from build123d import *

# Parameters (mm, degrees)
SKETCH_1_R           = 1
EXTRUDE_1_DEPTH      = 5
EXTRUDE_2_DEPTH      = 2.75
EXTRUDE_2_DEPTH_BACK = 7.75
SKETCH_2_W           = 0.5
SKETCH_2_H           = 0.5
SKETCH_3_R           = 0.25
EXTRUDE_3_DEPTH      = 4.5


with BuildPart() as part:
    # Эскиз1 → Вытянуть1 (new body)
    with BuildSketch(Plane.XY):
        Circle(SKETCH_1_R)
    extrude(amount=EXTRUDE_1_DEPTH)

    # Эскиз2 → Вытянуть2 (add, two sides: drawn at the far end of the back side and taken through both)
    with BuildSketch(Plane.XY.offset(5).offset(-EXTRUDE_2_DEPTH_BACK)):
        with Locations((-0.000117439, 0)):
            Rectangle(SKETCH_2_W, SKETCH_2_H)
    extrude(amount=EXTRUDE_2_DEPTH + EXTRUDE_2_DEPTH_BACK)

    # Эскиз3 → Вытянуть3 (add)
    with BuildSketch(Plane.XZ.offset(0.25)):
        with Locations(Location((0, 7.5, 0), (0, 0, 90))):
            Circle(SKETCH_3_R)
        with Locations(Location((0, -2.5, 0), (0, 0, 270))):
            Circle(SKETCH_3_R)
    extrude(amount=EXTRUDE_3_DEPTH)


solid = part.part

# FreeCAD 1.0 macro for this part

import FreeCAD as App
import Part
import Sketcher
Q = App.Units.Quantity


def add_polygon(sketch, points):
    """Adds a closed chain of lines whose ends are joined by coincident constraints."""
    first, n = sketch.GeometryCount, len(points)
    for a, b in zip(points, points[1:] + points[:1]):
        sketch.addGeometry(Part.LineSegment(App.Vector(*a, 0), App.Vector(*b, 0)), False)
    for i in range(n):
        sketch.addConstraint(Sketcher.Constraint("Coincident", first + i, 2, first + (i + 1) % n, 1))

doc = App.newDocument("Part")
params = doc.addObject("Spreadsheet::Sheet", "Params")
for row, (alias, value) in enumerate([
    ("sketch1_diameter", "2 mm"),
    ("pad1_length", "5 mm"),
    ("sketch2_width", "0.5 mm"),
    ("pad2_length", "2.75 mm"),
    ("pad2_length2", "7.75 mm"),
    ("sketch3_diameter", "0.5 mm"),
    ("pad3_length", "4.5 mm"),
], start=1):
    params.set(f"A{row}", alias)
    params.set(f"B{row}", "=" + value)
    params.setAlias(f"B{row}", alias)

body = doc.addObject("PartDesign::Body", "Body")

# Sketch on XY plane
sketch1 = body.newObject("Sketcher::SketchObject", "Sketch")
sketch1.AttachmentSupport = (doc.getObject("XY_Plane"), [""])
sketch1.MapMode = "FlatFace"
sketch1.addGeometry(Part.Circle(App.Vector(0, 0, 0), App.Vector(0, 0, 1), 1), False)
sketch1.addConstraint([
    Sketcher.Constraint("Coincident", 0, 3, -1, 1),
    Sketcher.Constraint("Diameter", 0, Q("2 mm")),
])
sketch1.setExpression("Constraints[1]", "Params.sketch1_diameter")
pad1 = body.newObject("PartDesign::Pad", "Pad")
pad1.Profile = sketch1
pad1.setExpression("Length", "Params.pad1_length")

# Sketch on XY plane
sketch2 = body.newObject("Sketcher::SketchObject", "Sketch001")
sketch2.AttachmentSupport = (doc.getObject("XY_Plane"), [""])
sketch2.MapMode = "FlatFace"
sketch2.AttachmentOffset = App.Placement(App.Vector(0, 0, 5), App.Rotation())
add_polygon(sketch2, [(-0.3, 0.2), (-0.3, -0.2), (0.2, -0.2), (0.2, 0.2)])  # lines 0-3
sketch2.addConstraint([
    Sketcher.Constraint("Vertical", 0),
    Sketcher.Constraint("Horizontal", 1),
    Sketcher.Constraint("Vertical", 2),
    Sketcher.Constraint("Horizontal", 3),
    Sketcher.Constraint("Equal", 3, 0),
    Sketcher.Constraint("DistanceX", 1, 1, 1, 2, Q("0.5 mm")),
    Sketcher.Constraint("DistanceY", 0, 2, -1, 1, Q("0.25 mm")),
    Sketcher.Constraint("DistanceX", 0, 2, -1, 1, Q("0.250117 mm")),
])
sketch2.setExpression("Constraints[9]", "Params.sketch2_width")
pad2 = body.newObject("PartDesign::Pad", "Pad001")
pad2.Profile = sketch2
pad2.Type = "TwoLengths"
pad2.setExpression("Length", "Params.pad2_length")
pad2.setExpression("Length2", "Params.pad2_length2")

# Sketch on XZ plane
sketch3 = body.newObject("Sketcher::SketchObject", "Sketch002")
sketch3.AttachmentSupport = (doc.getObject("XZ_Plane"), [""])
sketch3.MapMode = "FlatFace"
sketch3.AttachmentOffset = App.Placement(App.Vector(0, 0, 0.25), App.Rotation())
sketch3.addGeometry([
    Part.Circle(App.Vector(0, 7.5, 0), App.Vector(0, 0, 1), 0.25),
    Part.Circle(App.Vector(0, -2.5, 0), App.Vector(0, 0, 1), 0.25),
], False)
sketch3.addConstraint([
    Sketcher.Constraint("Equal", 0, 1),
    Sketcher.Constraint("PointOnObject", 0, 3, -2),
    Sketcher.Constraint("PointOnObject", 1, 3, -2),
    Sketcher.Constraint("Diameter", 0, Q("0.5 mm")),
    Sketcher.Constraint("DistanceY", 1, 3, 0, 3, Q("10 mm")),
    Sketcher.Constraint("DistanceY", -1, 1, 0, 3, Q("7.5 mm")),
])
sketch3.setExpression("Constraints[3]", "Params.sketch3_diameter")
pad3 = body.newObject("PartDesign::Pad", "Pad002")
pad3.Profile = sketch3
pad3.setExpression("Length", "Params.pad3_length")

doc.recompute()
